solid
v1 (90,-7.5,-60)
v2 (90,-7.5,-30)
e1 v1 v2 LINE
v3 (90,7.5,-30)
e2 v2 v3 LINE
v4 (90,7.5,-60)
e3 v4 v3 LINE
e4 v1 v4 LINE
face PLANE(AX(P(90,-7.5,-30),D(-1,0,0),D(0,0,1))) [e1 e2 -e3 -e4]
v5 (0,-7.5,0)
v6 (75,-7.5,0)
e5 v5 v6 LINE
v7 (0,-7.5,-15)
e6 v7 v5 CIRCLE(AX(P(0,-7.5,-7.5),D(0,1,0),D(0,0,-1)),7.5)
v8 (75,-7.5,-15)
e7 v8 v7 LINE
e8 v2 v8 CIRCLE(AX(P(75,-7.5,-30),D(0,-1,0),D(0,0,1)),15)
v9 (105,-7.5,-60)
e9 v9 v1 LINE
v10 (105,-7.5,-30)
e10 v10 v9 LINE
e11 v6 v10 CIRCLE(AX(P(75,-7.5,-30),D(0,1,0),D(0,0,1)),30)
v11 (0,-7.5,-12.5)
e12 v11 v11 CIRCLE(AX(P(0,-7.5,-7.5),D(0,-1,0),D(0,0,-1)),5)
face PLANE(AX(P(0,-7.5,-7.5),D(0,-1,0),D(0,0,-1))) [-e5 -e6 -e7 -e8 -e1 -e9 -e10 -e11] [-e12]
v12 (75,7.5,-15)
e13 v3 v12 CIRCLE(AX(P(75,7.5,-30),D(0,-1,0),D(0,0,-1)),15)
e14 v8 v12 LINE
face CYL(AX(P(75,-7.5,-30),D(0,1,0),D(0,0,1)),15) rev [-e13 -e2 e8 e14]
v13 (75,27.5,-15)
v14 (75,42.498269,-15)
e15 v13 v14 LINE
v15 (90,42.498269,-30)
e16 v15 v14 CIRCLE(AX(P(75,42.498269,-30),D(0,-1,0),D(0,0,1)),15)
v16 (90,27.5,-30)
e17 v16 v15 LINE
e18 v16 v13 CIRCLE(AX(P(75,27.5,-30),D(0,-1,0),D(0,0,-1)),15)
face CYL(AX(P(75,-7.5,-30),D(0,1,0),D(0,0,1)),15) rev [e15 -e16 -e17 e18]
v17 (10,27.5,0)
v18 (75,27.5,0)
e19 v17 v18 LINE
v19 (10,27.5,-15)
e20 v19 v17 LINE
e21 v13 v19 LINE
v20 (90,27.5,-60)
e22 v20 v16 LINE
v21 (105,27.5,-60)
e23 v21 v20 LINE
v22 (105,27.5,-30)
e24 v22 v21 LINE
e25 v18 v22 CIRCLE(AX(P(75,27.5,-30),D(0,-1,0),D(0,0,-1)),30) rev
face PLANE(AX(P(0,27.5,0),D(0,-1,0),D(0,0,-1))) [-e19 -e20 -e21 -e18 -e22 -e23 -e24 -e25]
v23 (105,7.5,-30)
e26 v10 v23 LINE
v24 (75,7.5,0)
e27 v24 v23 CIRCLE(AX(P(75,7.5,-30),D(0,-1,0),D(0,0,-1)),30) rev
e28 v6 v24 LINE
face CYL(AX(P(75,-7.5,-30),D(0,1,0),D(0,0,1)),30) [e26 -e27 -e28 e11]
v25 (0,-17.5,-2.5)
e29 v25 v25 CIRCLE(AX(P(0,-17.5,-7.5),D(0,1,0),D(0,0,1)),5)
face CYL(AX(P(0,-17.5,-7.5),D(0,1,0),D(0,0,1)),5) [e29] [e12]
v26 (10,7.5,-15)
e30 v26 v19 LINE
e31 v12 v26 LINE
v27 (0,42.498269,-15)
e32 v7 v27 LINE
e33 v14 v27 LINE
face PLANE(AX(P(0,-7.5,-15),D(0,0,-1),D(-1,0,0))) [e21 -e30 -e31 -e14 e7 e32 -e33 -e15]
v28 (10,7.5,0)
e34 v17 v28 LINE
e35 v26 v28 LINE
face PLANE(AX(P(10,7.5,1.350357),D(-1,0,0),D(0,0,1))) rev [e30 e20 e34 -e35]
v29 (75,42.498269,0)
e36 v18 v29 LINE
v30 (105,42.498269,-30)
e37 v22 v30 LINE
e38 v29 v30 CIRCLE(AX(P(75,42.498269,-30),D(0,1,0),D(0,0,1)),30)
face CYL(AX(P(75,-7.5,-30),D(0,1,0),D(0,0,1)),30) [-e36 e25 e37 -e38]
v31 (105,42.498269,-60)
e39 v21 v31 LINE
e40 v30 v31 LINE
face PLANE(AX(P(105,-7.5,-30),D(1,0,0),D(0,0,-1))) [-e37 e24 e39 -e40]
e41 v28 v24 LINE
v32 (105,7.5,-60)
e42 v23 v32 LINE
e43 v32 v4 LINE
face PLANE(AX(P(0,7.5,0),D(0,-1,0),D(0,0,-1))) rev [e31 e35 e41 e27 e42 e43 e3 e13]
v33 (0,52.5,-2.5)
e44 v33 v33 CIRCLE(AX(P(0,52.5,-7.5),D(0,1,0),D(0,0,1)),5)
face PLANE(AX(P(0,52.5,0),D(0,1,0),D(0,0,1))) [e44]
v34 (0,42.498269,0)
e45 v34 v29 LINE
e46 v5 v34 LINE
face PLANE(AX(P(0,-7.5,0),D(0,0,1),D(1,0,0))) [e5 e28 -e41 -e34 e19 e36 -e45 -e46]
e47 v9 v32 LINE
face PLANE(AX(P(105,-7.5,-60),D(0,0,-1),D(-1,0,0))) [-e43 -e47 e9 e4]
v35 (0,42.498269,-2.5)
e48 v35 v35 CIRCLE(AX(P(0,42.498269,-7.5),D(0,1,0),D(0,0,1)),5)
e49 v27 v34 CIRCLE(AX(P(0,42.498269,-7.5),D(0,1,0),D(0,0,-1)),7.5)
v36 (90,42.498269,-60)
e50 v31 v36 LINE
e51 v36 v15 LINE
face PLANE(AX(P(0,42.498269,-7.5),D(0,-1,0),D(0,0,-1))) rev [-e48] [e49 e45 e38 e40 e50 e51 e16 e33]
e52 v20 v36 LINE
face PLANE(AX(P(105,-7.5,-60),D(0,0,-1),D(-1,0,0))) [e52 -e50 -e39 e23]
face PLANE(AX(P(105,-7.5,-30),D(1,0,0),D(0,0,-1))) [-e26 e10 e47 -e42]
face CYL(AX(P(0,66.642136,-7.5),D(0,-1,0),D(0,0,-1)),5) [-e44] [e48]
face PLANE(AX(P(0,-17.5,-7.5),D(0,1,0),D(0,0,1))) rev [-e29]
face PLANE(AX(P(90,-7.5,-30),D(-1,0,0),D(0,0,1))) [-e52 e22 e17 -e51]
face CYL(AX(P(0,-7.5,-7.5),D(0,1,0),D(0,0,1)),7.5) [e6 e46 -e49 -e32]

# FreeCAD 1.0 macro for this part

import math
import FreeCAD as App
import Part
import Sketcher
from FreeCAD import Vector
Q = App.Units.Quantity

doc = App.newDocument("Part")
body = doc.addObject("PartDesign::Body", "Body")

# Sketch on XZ plane
sketch1 = body.newObject("Sketcher::SketchObject", "Sketch")
sketch1.AttachmentSupport = (doc.getObject("XZ_Plane"), [""])
sketch1.MapMode = "FlatFace"
sketch1.addGeometry(Part.LineSegment(Vector(0, 0, 0), Vector(75, 0, 0)), False)
sketch1.addGeometry(Part.ArcOfCircle(Part.Circle(Vector(75, -30, 0), Vector(0, 0, 1), 30), math.radians(0), math.radians(90)), False)
sketch1.addGeometry(Part.LineSegment(Vector(105, -30, 0), Vector(105, -60, 0)), False)
sketch1.addGeometry(Part.LineSegment(Vector(105, -60, 0), Vector(90, -60, 0)), False)
sketch1.addGeometry(Part.LineSegment(Vector(90, -60, 0), Vector(90, -30, 0)), False)
sketch1.addGeometry(Part.ArcOfCircle(Part.Circle(Vector(75, -30, 0), Vector(0, 0, 1), 15), math.radians(0), math.radians(90)), False)
sketch1.addGeometry(Part.LineSegment(Vector(75, -15, 0), Vector(0, -15, 0)), False)
sketch1.addGeometry(Part.ArcOfCircle(Part.Circle(Vector(0, -8, 0), Vector(0, 0, 1), 8), math.radians(90), math.radians(270)), False)
sketch1.addGeometry(Part.Circle(Vector(0, -8, 0), Vector(0, 0, 1), 5), False)
sketch1.addConstraint(Sketcher.Constraint("Tangent", 0, 2, 1, 2))
sketch1.addConstraint(Sketcher.Constraint("Tangent", 1, 1, 2, 1))
sketch1.addConstraint(Sketcher.Constraint("Coincident", 2, 2, 3, 1))
sketch1.addConstraint(Sketcher.Constraint("Coincident", 3, 2, 4, 1))
sketch1.addConstraint(Sketcher.Constraint("Tangent", 4, 2, 5, 1))
sketch1.addConstraint(Sketcher.Constraint("Tangent", 5, 2, 6, 1))
sketch1.addConstraint(Sketcher.Constraint("Tangent", 6, 2, 7, 2))
sketch1.addConstraint(Sketcher.Constraint("Tangent", 7, 1, 0, 1))
sketch1.addConstraint(Sketcher.Constraint("Horizontal", 0))
sketch1.addConstraint(Sketcher.Constraint("Vertical", 2))
sketch1.addConstraint(Sketcher.Constraint("Horizontal", 3))
sketch1.addConstraint(Sketcher.Constraint("Vertical", 4))
sketch1.addConstraint(Sketcher.Constraint("Horizontal", 6))
sketch1.addConstraint(Sketcher.Constraint("Coincident", 7, 1, -1, 1))
sketch1.addConstraint(Sketcher.Constraint("Coincident", 5, 3, 1, 3))
sketch1.addConstraint(Sketcher.Constraint("Coincident", 8, 3, 7, 3))
sketch1.addConstraint(Sketcher.Constraint("Diameter", 8, Q("10 mm")))
sketch1.addConstraint(Sketcher.Constraint("Radius", 1, Q("30 mm")))
sketch1.addConstraint(Sketcher.Constraint("Radius", 5, Q("15 mm")))
sketch1.addConstraint(Sketcher.Constraint("DistanceX", 0, 1, 0, 2, Q("75 mm")))
sketch1.addConstraint(Sketcher.Constraint("DistanceY", 2, 2, 2, 1, Q("30 mm")))
pad1 = body.newObject("PartDesign::Pad", "Pad")
pad1.Profile = sketch1
pad1.Type = "TwoLengths"
pad1.Length = 42.498269
pad1.Length2 = 7.5
pad1.Reversed = True

# Sketch on XZ plane
sketch2 = body.newObject("Sketcher::SketchObject", "Sketch001")
sketch2.AttachmentSupport = (doc.getObject("XZ_Plane"), [""])
sketch2.MapMode = "FlatFace"
sketch2.addGeometry(Part.Circle(Vector(0, -8, 0), Vector(0, 0, 1), 5), False)
sketch2.addConstraint(Sketcher.Constraint("PointOnObject", 0, 3, -2))
sketch2.addConstraint(Sketcher.Constraint("Diameter", 0, Q("10 mm")))
sketch2.addConstraint(Sketcher.Constraint("DistanceY", 0, 3, -1, 1, Q("7.5 mm")))
pad2 = body.newObject("PartDesign::Pad", "Pad001")
pad2.Profile = sketch2
pad2.Length = 35
pad2.Midplane = True

# Sketch on XZ plane
sketch3 = body.newObject("Sketcher::SketchObject", "Sketch002")
sketch3.AttachmentSupport = (doc.getObject("XZ_Plane"), [""])
sketch3.MapMode = "FlatFace"
sketch3.addGeometry(Part.Circle(Vector(0, -8, 0), Vector(0, 0, 1), 5), False)
sketch3.addConstraint(Sketcher.Constraint("PointOnObject", 0, 3, -2))
sketch3.addConstraint(Sketcher.Constraint("Diameter", 0, Q("10 mm")))
sketch3.addConstraint(Sketcher.Constraint("DistanceY", 0, 3, -1, 1, Q("7.5 mm")))
pad3 = body.newObject("PartDesign::Pad", "Pad002")
pad3.Profile = sketch3
pad3.Length = 52.5
pad3.Reversed = True

# Sketch on XZ plane
sketch4 = body.newObject("Sketcher::SketchObject", "Sketch003")
sketch4.AttachmentSupport = (doc.getObject("XZ_Plane"), [""])
sketch4.MapMode = "FlatFace"
sketch4.AttachmentOffset = App.Placement(Vector(0, 0, -17.5), App.Rotation())
sketch4.addGeometry(Part.LineSegment(Vector(10, -73, 0), Vector(10, 1, 0)), False)
sketch4.addGeometry(Part.LineSegment(Vector(10, 1, 0), Vector(118, 1, 0)), False)
sketch4.addGeometry(Part.LineSegment(Vector(118, 1, 0), Vector(118, -73, 0)), False)
sketch4.addGeometry(Part.LineSegment(Vector(118, -73, 0), Vector(10, -73, 0)), False)
sketch4.addConstraint(Sketcher.Constraint("Coincident", 0, 2, 1, 1))
sketch4.addConstraint(Sketcher.Constraint("Coincident", 1, 2, 2, 1))
sketch4.addConstraint(Sketcher.Constraint("Coincident", 2, 2, 3, 1))
sketch4.addConstraint(Sketcher.Constraint("Coincident", 3, 2, 0, 1))
sketch4.addConstraint(Sketcher.Constraint("Vertical", 0))
sketch4.addConstraint(Sketcher.Constraint("Horizontal", 1))
sketch4.addConstraint(Sketcher.Constraint("Vertical", 2))
sketch4.addConstraint(Sketcher.Constraint("Horizontal", 3))
sketch4.addConstraint(Sketcher.Constraint("DistanceX", -1, 1, 0, 2, Q("10 mm")))
sketch4.addConstraint(Sketcher.Constraint("DistanceX", 1, 1, 1, 2, Q("107.730206 mm")))
sketch4.addConstraint(Sketcher.Constraint("DistanceY", 0, 1, 0, 2, Q("74.358976 mm")))
sketch4.addConstraint(Sketcher.Constraint("DistanceY", 2, 2, -1, 1, Q("73.008618 mm")))
pocket1 = body.newObject("PartDesign::Pocket", "Pocket")
pocket1.Profile = sketch4
pocket1.Length = 20
pocket1.Midplane = True

doc.recompute()
